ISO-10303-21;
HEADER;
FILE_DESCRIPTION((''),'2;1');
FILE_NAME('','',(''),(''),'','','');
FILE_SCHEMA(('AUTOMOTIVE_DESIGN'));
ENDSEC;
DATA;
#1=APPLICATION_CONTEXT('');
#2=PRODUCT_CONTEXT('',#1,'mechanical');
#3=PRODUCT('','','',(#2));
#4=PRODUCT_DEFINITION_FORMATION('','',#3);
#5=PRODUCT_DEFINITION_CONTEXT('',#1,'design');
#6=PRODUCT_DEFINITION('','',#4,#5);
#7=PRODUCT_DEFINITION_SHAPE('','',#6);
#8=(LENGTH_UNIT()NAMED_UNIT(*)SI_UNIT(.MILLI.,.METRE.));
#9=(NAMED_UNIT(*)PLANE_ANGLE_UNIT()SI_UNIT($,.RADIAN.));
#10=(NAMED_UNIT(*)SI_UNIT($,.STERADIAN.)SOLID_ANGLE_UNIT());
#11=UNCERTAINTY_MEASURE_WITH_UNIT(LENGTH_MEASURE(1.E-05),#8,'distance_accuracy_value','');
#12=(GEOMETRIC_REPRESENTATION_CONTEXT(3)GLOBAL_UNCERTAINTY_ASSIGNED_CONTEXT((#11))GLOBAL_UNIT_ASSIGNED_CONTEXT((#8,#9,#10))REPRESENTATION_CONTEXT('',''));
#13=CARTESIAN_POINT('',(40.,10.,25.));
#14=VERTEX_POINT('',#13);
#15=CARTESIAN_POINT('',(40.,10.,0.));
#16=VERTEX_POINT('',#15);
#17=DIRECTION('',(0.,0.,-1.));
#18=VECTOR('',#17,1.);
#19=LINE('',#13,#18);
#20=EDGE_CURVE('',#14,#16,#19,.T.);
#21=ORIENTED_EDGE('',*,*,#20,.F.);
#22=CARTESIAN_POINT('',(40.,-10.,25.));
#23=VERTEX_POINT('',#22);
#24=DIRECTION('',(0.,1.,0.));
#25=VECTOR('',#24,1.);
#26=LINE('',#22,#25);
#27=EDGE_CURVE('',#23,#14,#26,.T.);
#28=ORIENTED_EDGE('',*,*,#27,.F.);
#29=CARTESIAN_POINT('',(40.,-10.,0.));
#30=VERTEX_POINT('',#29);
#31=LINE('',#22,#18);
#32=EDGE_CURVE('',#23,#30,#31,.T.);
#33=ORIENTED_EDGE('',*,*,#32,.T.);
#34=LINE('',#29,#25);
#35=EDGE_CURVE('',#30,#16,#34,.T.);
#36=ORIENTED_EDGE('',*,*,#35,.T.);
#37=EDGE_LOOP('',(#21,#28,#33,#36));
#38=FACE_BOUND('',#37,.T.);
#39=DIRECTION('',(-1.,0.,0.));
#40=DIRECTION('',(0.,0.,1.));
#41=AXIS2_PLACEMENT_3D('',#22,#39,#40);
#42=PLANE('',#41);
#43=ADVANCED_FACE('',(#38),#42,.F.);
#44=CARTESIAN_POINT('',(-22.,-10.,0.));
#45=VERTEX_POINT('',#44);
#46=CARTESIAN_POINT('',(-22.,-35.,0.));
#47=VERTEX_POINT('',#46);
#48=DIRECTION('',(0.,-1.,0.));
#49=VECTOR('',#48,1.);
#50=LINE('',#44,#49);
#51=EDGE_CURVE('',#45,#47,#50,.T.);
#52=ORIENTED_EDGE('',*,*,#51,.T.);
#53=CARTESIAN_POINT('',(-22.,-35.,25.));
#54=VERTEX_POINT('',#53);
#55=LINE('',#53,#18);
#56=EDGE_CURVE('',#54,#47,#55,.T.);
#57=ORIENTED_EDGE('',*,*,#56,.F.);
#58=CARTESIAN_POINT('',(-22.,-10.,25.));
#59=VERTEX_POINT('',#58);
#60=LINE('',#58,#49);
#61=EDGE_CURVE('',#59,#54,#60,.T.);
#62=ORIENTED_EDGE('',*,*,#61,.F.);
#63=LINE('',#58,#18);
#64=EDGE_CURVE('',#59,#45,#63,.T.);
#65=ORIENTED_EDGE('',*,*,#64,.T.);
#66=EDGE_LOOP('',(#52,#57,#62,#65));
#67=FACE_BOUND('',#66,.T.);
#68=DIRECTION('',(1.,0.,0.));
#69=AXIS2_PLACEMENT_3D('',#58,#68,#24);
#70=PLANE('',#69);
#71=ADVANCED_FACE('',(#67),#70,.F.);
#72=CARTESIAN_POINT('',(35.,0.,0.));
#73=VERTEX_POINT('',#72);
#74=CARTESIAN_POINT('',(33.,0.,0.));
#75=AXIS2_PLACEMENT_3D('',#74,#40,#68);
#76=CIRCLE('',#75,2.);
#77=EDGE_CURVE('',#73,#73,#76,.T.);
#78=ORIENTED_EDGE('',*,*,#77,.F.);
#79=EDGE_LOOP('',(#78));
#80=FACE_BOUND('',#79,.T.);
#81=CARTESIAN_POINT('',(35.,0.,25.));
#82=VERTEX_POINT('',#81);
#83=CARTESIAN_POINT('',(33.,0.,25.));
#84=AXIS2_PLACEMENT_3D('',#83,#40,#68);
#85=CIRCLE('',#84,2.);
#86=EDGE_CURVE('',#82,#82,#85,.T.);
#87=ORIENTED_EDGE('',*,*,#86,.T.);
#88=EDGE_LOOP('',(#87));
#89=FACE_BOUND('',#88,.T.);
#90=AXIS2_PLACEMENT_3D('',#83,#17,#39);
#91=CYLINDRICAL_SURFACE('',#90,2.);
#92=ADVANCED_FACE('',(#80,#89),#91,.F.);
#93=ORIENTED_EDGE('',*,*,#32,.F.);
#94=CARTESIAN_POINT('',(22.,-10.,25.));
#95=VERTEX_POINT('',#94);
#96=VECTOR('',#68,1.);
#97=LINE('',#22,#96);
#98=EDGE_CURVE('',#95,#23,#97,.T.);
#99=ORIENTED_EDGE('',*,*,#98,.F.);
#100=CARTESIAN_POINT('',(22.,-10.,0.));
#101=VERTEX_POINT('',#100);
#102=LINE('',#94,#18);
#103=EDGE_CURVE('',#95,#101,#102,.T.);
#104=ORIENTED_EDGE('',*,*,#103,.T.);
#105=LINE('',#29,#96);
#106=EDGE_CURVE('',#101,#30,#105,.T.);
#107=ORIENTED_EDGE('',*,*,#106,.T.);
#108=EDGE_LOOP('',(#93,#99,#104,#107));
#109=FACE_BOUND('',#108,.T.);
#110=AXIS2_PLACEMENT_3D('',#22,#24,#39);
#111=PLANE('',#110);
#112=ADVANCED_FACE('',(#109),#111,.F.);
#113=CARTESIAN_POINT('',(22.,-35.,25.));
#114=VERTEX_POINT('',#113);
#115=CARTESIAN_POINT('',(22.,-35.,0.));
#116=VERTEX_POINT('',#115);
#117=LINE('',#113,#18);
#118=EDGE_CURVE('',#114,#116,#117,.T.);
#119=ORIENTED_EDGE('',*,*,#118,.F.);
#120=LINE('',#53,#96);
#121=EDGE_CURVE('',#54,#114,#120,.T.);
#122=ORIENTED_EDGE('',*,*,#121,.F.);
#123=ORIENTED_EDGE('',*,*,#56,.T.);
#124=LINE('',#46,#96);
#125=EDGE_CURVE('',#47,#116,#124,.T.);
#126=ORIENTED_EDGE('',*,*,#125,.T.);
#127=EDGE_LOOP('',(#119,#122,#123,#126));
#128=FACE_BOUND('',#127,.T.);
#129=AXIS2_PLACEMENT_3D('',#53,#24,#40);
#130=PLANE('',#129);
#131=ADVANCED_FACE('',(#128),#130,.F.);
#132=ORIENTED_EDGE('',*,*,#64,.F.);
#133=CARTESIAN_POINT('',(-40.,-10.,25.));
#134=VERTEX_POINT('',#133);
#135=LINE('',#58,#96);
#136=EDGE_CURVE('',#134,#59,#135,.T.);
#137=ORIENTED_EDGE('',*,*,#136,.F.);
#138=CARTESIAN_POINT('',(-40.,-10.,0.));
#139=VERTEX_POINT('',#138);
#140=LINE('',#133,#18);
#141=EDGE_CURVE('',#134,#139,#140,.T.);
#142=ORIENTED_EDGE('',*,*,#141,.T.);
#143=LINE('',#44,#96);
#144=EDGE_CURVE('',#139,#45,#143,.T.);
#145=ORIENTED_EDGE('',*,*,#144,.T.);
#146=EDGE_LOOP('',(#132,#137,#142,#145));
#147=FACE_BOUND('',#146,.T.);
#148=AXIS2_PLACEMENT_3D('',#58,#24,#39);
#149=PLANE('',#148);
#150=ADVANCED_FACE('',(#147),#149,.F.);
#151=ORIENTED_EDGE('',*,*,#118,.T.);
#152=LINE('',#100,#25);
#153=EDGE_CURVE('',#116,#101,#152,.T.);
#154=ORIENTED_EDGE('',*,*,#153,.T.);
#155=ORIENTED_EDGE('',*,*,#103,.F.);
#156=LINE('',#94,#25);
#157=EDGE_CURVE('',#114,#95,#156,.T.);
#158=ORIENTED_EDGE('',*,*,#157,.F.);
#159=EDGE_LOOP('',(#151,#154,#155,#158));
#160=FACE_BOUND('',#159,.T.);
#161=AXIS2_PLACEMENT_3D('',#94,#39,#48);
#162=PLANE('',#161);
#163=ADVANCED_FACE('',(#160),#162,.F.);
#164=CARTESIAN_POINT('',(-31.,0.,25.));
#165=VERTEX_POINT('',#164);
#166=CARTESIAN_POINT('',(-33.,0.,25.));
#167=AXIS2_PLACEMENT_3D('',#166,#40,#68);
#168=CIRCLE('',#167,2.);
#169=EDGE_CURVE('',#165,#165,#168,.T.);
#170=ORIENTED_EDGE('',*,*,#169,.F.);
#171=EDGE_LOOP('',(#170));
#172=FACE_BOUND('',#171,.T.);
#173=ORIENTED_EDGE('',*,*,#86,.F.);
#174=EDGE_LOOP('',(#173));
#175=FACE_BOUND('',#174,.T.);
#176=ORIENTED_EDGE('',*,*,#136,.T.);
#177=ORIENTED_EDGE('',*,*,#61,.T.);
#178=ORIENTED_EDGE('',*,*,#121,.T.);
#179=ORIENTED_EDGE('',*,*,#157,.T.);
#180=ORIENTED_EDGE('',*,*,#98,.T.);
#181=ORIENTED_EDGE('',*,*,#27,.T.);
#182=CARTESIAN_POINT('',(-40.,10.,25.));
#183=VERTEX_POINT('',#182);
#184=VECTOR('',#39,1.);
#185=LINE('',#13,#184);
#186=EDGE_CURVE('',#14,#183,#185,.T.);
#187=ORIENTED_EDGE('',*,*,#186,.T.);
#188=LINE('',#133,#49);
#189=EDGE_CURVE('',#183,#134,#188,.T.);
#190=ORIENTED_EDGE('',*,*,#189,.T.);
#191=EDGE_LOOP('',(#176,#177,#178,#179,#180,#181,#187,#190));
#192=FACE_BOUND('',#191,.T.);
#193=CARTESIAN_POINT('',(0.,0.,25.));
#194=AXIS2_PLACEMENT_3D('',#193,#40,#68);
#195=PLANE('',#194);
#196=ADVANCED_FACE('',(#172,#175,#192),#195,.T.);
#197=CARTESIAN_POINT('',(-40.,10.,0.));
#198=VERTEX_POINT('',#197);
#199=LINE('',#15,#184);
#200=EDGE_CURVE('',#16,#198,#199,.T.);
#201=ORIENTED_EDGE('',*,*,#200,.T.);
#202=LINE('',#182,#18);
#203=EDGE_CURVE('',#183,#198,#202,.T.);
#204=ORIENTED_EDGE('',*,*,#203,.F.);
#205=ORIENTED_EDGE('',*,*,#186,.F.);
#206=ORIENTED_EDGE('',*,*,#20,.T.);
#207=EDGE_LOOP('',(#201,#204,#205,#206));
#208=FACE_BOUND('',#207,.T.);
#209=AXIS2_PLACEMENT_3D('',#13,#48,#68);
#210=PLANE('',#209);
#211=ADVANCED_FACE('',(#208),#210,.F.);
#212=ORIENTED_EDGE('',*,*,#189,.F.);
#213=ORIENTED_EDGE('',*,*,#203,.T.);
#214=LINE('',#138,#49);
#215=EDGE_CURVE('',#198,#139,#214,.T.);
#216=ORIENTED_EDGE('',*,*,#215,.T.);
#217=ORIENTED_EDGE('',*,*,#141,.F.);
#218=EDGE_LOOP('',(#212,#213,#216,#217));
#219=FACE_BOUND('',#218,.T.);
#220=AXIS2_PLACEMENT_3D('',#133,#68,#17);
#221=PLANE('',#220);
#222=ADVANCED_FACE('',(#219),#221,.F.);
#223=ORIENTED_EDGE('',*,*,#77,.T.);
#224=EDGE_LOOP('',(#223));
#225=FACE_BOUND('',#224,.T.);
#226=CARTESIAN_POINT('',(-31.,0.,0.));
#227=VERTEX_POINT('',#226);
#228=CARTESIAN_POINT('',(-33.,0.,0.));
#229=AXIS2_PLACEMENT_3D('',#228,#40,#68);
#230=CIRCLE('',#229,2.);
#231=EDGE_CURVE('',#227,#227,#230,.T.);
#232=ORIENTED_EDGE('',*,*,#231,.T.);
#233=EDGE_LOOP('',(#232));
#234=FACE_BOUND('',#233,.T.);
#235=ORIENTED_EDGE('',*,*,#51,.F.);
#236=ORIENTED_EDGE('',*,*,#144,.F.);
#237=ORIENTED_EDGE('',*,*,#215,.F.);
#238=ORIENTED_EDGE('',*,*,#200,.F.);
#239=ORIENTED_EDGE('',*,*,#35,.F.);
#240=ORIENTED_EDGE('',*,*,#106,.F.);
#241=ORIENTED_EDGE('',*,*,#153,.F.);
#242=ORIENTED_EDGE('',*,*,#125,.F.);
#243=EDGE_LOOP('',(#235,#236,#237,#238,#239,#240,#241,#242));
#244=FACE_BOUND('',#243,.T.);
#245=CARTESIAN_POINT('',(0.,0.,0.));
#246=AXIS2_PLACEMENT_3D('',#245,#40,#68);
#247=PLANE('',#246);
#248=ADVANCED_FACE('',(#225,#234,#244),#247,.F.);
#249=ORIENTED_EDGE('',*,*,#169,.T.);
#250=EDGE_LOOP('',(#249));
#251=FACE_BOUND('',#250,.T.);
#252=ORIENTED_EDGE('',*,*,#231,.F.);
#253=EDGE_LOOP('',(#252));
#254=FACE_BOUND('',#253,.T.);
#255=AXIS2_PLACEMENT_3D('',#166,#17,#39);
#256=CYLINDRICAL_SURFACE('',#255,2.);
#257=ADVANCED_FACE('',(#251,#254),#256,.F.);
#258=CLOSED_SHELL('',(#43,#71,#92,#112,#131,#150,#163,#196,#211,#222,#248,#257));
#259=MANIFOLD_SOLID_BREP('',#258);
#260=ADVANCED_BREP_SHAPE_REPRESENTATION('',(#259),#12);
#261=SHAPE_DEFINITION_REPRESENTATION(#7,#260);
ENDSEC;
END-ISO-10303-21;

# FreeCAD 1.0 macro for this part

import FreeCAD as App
import Part
import Sketcher


def add_polygon(sketch, points):
    """Adds a closed chain of lines whose ends are joined by coincident constraints."""
    first, n = sketch.GeometryCount, len(points)
    for a, b in zip(points, points[1:] + points[:1]):
        sketch.addGeometry(Part.LineSegment(App.Vector(*a, 0), App.Vector(*b, 0)), False)
    for i in range(n):
        sketch.addConstraint(Sketcher.Constraint("Coincident", first + i, 2, first + (i + 1) % n, 1))

doc = App.newDocument("Part")
params = doc.addObject("Spreadsheet::Sheet", "Params")
for row, (alias, value) in enumerate([
    ("sketch1_diameter", "4 mm"),
    ("sketch1_width", "18 mm"),
    ("sketch1_width2", "44 mm"),
    ("sketch1_height", "25 mm"),
    ("sketch1_height2", "20 mm"),
    ("pad1_length", "25 mm"),
], start=1):
    params.set(f"A{row}", alias)
    params.set(f"B{row}", "=" + value)
    params.setAlias(f"B{row}", alias)

body = doc.addObject("PartDesign::Body", "Body")

sketch1 = body.newObject("Sketcher::SketchObject", "Sketch")
sketch1.AttachmentSupport = (doc.getObject("XY_Plane"), [""])
sketch1.MapMode = "FlatFace"
add_polygon(sketch1, [(-40, -10), (-22, -10), (-22, -35), (22, -35), (22, -10), (40, -10), (40, 10), (-40, 10)])
sketch1.addGeometry(Part.Circle(App.Vector(33, 0, 0), App.Vector(0, 0, 1), 2), False)
sketch1.addGeometry(Part.Circle(App.Vector(-33, 0, 0), App.Vector(0, 0, 1), 2), False)
sketch1.addConstraint(Sketcher.Constraint("Horizontal", 0))
sketch1.addConstraint(Sketcher.Constraint("Vertical", 1))
sketch1.addConstraint(Sketcher.Constraint("Horizontal", 2))
sketch1.addConstraint(Sketcher.Constraint("Vertical", 3))
sketch1.addConstraint(Sketcher.Constraint("Horizontal", 4))
sketch1.addConstraint(Sketcher.Constraint("Vertical", 5))
sketch1.addConstraint(Sketcher.Constraint("Horizontal", 6))
sketch1.addConstraint(Sketcher.Constraint("Vertical", 7))
sketch1.addConstraint(Sketcher.Constraint("Equal", 8, 9))
sketch1.addConstraint(Sketcher.Constraint("Symmetric", 8, 3, 9, 3, -1, 1))
sketch1.addConstraint(Sketcher.Constraint("Symmetric", 4, 2, 6, 2, -1, 1))
sketch1.addConstraint(Sketcher.Constraint("Symmetric", 0, 2, 3, 2, -2))
sketch1.addConstraint(Sketcher.Constraint("PointOnObject", 8, 3, -1))
sketch1.addConstraint(Sketcher.Constraint("Diameter", 8, 4.0))
sketch1.addConstraint(Sketcher.Constraint("DistanceX", 0, 1, 0, 2, 18.0))
sketch1.addConstraint(Sketcher.Constraint("DistanceX", 2, 1, 2, 2, 44.0))
sketch1.addConstraint(Sketcher.Constraint("DistanceY", 1, 2, 1, 1, 25.0))
sketch1.addConstraint(Sketcher.Constraint("DistanceY", 5, 1, 5, 2, 20.0))
sketch1.addConstraint(Sketcher.Constraint("DistanceX", -1, 1, 8, 3, 33.0))
sketch1.setExpression("Constraints[21]", "Params.sketch1_diameter")
sketch1.setExpression("Constraints[22]", "Params.sketch1_width")
sketch1.setExpression("Constraints[23]", "Params.sketch1_width2")
sketch1.setExpression("Constraints[24]", "Params.sketch1_height")
sketch1.setExpression("Constraints[25]", "Params.sketch1_height2")
pad1 = body.newObject("PartDesign::Pad", "Pad")
pad1.Profile = sketch1
pad1.setExpression("Length", "Params.pad1_length")

doc.recompute()
